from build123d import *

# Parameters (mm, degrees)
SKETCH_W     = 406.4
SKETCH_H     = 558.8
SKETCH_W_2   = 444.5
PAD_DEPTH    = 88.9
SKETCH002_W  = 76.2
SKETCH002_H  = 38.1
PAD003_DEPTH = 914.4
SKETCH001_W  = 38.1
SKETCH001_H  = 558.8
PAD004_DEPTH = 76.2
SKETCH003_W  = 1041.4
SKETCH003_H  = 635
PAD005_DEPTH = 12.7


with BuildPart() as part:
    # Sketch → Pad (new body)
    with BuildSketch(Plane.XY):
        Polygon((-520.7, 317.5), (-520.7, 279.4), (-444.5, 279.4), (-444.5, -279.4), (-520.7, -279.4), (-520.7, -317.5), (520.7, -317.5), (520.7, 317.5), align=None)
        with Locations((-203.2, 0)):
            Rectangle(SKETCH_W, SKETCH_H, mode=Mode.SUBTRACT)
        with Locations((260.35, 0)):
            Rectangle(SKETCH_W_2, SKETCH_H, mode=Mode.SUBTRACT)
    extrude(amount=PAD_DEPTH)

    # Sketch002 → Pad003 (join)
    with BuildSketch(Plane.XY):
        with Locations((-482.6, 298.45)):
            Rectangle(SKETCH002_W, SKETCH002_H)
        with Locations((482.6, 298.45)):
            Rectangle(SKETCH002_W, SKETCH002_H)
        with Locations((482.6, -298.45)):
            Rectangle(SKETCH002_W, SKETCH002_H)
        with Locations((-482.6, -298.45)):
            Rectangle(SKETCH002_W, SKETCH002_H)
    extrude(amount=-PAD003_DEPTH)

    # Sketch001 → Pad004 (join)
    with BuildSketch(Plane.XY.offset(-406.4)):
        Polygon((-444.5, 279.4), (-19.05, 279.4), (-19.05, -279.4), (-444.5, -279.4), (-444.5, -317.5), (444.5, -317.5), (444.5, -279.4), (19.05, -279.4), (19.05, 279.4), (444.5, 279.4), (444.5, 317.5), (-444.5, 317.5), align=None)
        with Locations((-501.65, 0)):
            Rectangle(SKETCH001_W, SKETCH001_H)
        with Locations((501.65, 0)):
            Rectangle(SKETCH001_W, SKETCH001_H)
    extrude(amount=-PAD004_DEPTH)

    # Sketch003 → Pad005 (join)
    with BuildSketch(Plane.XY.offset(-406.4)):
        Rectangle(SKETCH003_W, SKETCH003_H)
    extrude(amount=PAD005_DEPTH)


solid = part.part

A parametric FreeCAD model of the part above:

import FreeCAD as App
import Part
import Sketcher
Q = App.Units.Quantity

doc = App.newDocument("Part")
body = doc.addObject("PartDesign::Body", "Body")

# Sketch on XY plane
sketch1 = body.newObject("Sketcher::SketchObject", "Sketch")
sketch1.AttachmentSupport = (doc.getObject("XY_Plane"), [""])
sketch1.MapMode = "FlatFace"
sketch1.addGeometry(Part.LineSegment(App.Vector(-520.7, 317.5, 0), App.Vector(-520.7, 279.4, 0)), False)
sketch1.addGeometry(Part.LineSegment(App.Vector(-520.7, 279.4, 0), App.Vector(-444.5, 279.4, 0)), False)
sketch1.addGeometry(Part.LineSegment(App.Vector(-444.5, 279.4, 0), App.Vector(-444.5, -279.4, 0)), False)
sketch1.addGeometry(Part.LineSegment(App.Vector(-444.5, -279.4, 0), App.Vector(-520.7, -279.4, 0)), False)
sketch1.addGeometry(Part.LineSegment(App.Vector(-520.7, -279.4, 0), App.Vector(-520.7, -317.5, 0)), False)
sketch1.addGeometry(Part.LineSegment(App.Vector(-520.7, -317.5, 0), App.Vector(520.7, -317.5, 0)), False)
sketch1.addGeometry(Part.LineSegment(App.Vector(520.7, -317.5, 0), App.Vector(520.7, 317.5, 0)), False)
sketch1.addGeometry(Part.LineSegment(App.Vector(520.7, 317.5, 0), App.Vector(-520.7, 317.5, 0)), False)
sketch1.addGeometry(Part.LineSegment(App.Vector(0, -279.4, 0), App.Vector(-406.4, -279.4, 0)), False)
sketch1.addGeometry(Part.LineSegment(App.Vector(-406.4, -279.4, 0), App.Vector(-406.4, 279.4, 0)), False)
sketch1.addGeometry(Part.LineSegment(App.Vector(-406.4, 279.4, 0), App.Vector(0, 279.4, 0)), False)
sketch1.addGeometry(Part.LineSegment(App.Vector(0, 279.4, 0), App.Vector(0, -279.4, 0)), False)
sketch1.addGeometry(Part.LineSegment(App.Vector(482.6, -279.4, 0), App.Vector(38.1, -279.4, 0)), False)
sketch1.addGeometry(Part.LineSegment(App.Vector(38.1, -279.4, 0), App.Vector(38.1, 279.4, 0)), False)
sketch1.addGeometry(Part.LineSegment(App.Vector(38.1, 279.4, 0), App.Vector(482.6, 279.4, 0)), False)
sketch1.addGeometry(Part.LineSegment(App.Vector(482.6, 279.4, 0), App.Vector(482.6, -279.4, 0)), False)
sketch1.addConstraint(Sketcher.Constraint("Coincident", 0, 2, 1, 1))
sketch1.addConstraint(Sketcher.Constraint("Coincident", 1, 2, 2, 1))
sketch1.addConstraint(Sketcher.Constraint("Coincident", 2, 2, 3, 1))
sketch1.addConstraint(Sketcher.Constraint("Coincident", 3, 2, 4, 1))
sketch1.addConstraint(Sketcher.Constraint("Coincident", 4, 2, 5, 1))
sketch1.addConstraint(Sketcher.Constraint("Coincident", 5, 2, 6, 1))
sketch1.addConstraint(Sketcher.Constraint("Coincident", 6, 2, 7, 1))
sketch1.addConstraint(Sketcher.Constraint("Coincident", 7, 2, 0, 1))
sketch1.addConstraint(Sketcher.Constraint("Coincident", 8, 2, 9, 1))
sketch1.addConstraint(Sketcher.Constraint("Coincident", 9, 2, 10, 1))
sketch1.addConstraint(Sketcher.Constraint("Coincident", 10, 2, 11, 1))
sketch1.addConstraint(Sketcher.Constraint("Coincident", 11, 2, 8, 1))
sketch1.addConstraint(Sketcher.Constraint("Coincident", 12, 2, 13, 1))
sketch1.addConstraint(Sketcher.Constraint("Coincident", 13, 2, 14, 1))
sketch1.addConstraint(Sketcher.Constraint("Coincident", 14, 2, 15, 1))
sketch1.addConstraint(Sketcher.Constraint("Coincident", 15, 2, 12, 1))
sketch1.addConstraint(Sketcher.Constraint("Vertical", 0))
sketch1.addConstraint(Sketcher.Constraint("Horizontal", 1))
sketch1.addConstraint(Sketcher.Constraint("Vertical", 2))
sketch1.addConstraint(Sketcher.Constraint("Horizontal", 3))
sketch1.addConstraint(Sketcher.Constraint("Vertical", 4))
sketch1.addConstraint(Sketcher.Constraint("Horizontal", 5))
sketch1.addConstraint(Sketcher.Constraint("Vertical", 6))
sketch1.addConstraint(Sketcher.Constraint("Horizontal", 7))
sketch1.addConstraint(Sketcher.Constraint("Horizontal", 8))
sketch1.addConstraint(Sketcher.Constraint("Vertical", 9))
sketch1.addConstraint(Sketcher.Constraint("Horizontal", 10))
sketch1.addConstraint(Sketcher.Constraint("Vertical", 11))
sketch1.addConstraint(Sketcher.Constraint("Horizontal", 12))
sketch1.addConstraint(Sketcher.Constraint("Vertical", 13))
sketch1.addConstraint(Sketcher.Constraint("Horizontal", 14))
sketch1.addConstraint(Sketcher.Constraint("Vertical", 15))
sketch1.addConstraint(Sketcher.Constraint("Symmetric", 4, 2, 6, 2, -1, 1))
sketch1.addConstraint(Sketcher.Constraint("Symmetric", 10, 2, 11, 2, -1, 1))
sketch1.addConstraint(Sketcher.Constraint("Symmetric", 0, 2, 3, 2, -1))
sketch1.addConstraint(Sketcher.Constraint("Horizontal", 3, 2, 8, 2))
sketch1.addConstraint(Sketcher.Constraint("Horizontal", 11, 2, 12, 2))
sketch1.addConstraint(Sketcher.Constraint("Horizontal", 10, 2, 13, 2))
sketch1.addConstraint(Sketcher.Constraint("DistanceX", 1, 1, 1, 2, Q("3 in")))
sketch1.addConstraint(Sketcher.Constraint("DistanceX", 5, 1, 5, 2, Q("41 in")))
sketch1.addConstraint(Sketcher.Constraint("DistanceX", 8, 2, 8, 1, Q("16 in")))
sketch1.addConstraint(Sketcher.Constraint("DistanceY", 2, 2, 2, 1, Q("22 in")))
sketch1.addConstraint(Sketcher.Constraint("DistanceY", 6, 1, 6, 2, Q("25 in")))
sketch1.addConstraint(Sketcher.Constraint("DistanceX", 12, 2, 12, 1, Q("17.5 in")))
sketch1.addConstraint(Sketcher.Constraint("DistanceX", -1, 1, 14, 2, Q("19 in")))
pad1 = body.newObject("PartDesign::Pad", "Pad")
pad1.Profile = sketch1
pad1.Length = Q("3.5 in")

# Sketch on XY plane
sketch2 = body.newObject("Sketcher::SketchObject", "Sketch001")
sketch2.AttachmentSupport = (doc.getObject("XY_Plane"), [""])
sketch2.MapMode = "FlatFace"
sketch2.addGeometry(Part.LineSegment(App.Vector(-520.7, 317.5, 0), App.Vector(-520.7, 279.4, 0)), False)
sketch2.addGeometry(Part.LineSegment(App.Vector(-520.7, 279.4, 0), App.Vector(-444.5, 279.4, 0)), False)
sketch2.addGeometry(Part.LineSegment(App.Vector(-444.5, 279.4, 0), App.Vector(-444.5, 317.5, 0)), False)
sketch2.addGeometry(Part.LineSegment(App.Vector(-444.5, 317.5, 0), App.Vector(-520.7, 317.5, 0)), False)
sketch2.addGeometry(Part.LineSegment(App.Vector(444.5, 317.5, 0), App.Vector(444.5, 279.4, 0)), False)
sketch2.addGeometry(Part.LineSegment(App.Vector(444.5, 279.4, 0), App.Vector(520.7, 279.4, 0)), False)
sketch2.addGeometry(Part.LineSegment(App.Vector(520.7, 279.4, 0), App.Vector(520.7, 317.5, 0)), False)
sketch2.addGeometry(Part.LineSegment(App.Vector(520.7, 317.5, 0), App.Vector(444.5, 317.5, 0)), False)
sketch2.addGeometry(Part.LineSegment(App.Vector(444.5, -279.4, 0), App.Vector(444.5, -317.5, 0)), False)
sketch2.addGeometry(Part.LineSegment(App.Vector(444.5, -317.5, 0), App.Vector(520.7, -317.5, 0)), False)
sketch2.addGeometry(Part.LineSegment(App.Vector(520.7, -317.5, 0), App.Vector(520.7, -279.4, 0)), False)
sketch2.addGeometry(Part.LineSegment(App.Vector(520.7, -279.4, 0), App.Vector(444.5, -279.4, 0)), False)
sketch2.addGeometry(Part.LineSegment(App.Vector(-520.7, -279.4, 0), App.Vector(-520.7, -317.5, 0)), False)
sketch2.addGeometry(Part.LineSegment(App.Vector(-520.7, -317.5, 0), App.Vector(-444.5, -317.5, 0)), False)
sketch2.addGeometry(Part.LineSegment(App.Vector(-444.5, -317.5, 0), App.Vector(-444.5, -279.4, 0)), False)
sketch2.addGeometry(Part.LineSegment(App.Vector(-444.5, -279.4, 0), App.Vector(-520.7, -279.4, 0)), False)
sketch2.addConstraint(Sketcher.Constraint("Coincident", 0, 2, 1, 1))
sketch2.addConstraint(Sketcher.Constraint("Coincident", 1, 2, 2, 1))
sketch2.addConstraint(Sketcher.Constraint("Coincident", 2, 2, 3, 1))
sketch2.addConstraint(Sketcher.Constraint("Coincident", 3, 2, 0, 1))
sketch2.addConstraint(Sketcher.Constraint("Coincident", 4, 2, 5, 1))
sketch2.addConstraint(Sketcher.Constraint("Coincident", 5, 2, 6, 1))
sketch2.addConstraint(Sketcher.Constraint("Coincident", 6, 2, 7, 1))
sketch2.addConstraint(Sketcher.Constraint("Coincident", 7, 2, 4, 1))
sketch2.addConstraint(Sketcher.Constraint("Coincident", 8, 2, 9, 1))
sketch2.addConstraint(Sketcher.Constraint("Coincident", 9, 2, 10, 1))
sketch2.addConstraint(Sketcher.Constraint("Coincident", 10, 2, 11, 1))
sketch2.addConstraint(Sketcher.Constraint("Coincident", 11, 2, 8, 1))
sketch2.addConstraint(Sketcher.Constraint("Coincident", 12, 2, 13, 1))
sketch2.addConstraint(Sketcher.Constraint("Coincident", 13, 2, 14, 1))
sketch2.addConstraint(Sketcher.Constraint("Coincident", 14, 2, 15, 1))
sketch2.addConstraint(Sketcher.Constraint("Coincident", 15, 2, 12, 1))
sketch2.addConstraint(Sketcher.Constraint("Vertical", 0))
sketch2.addConstraint(Sketcher.Constraint("Horizontal", 1))
sketch2.addConstraint(Sketcher.Constraint("Vertical", 2))
sketch2.addConstraint(Sketcher.Constraint("Horizontal", 3))
sketch2.addConstraint(Sketcher.Constraint("Vertical", 4))
sketch2.addConstraint(Sketcher.Constraint("Horizontal", 5))
sketch2.addConstraint(Sketcher.Constraint("Vertical", 6))
sketch2.addConstraint(Sketcher.Constraint("Horizontal", 7))
sketch2.addConstraint(Sketcher.Constraint("Vertical", 8))
sketch2.addConstraint(Sketcher.Constraint("Horizontal", 9))
sketch2.addConstraint(Sketcher.Constraint("Vertical", 10))
sketch2.addConstraint(Sketcher.Constraint("Horizontal", 11))
sketch2.addConstraint(Sketcher.Constraint("Vertical", 12))
sketch2.addConstraint(Sketcher.Constraint("Horizontal", 13))
sketch2.addConstraint(Sketcher.Constraint("Vertical", 14))
sketch2.addConstraint(Sketcher.Constraint("Horizontal", 15))
sketch2.addConstraint(Sketcher.Constraint("Symmetric", 2, 2, 8, 2, -1, 1))
sketch2.addConstraint(Sketcher.Constraint("Symmetric", 0, 2, 10, 2, -1, 1))
sketch2.addConstraint(Sketcher.Constraint("Symmetric", 6, 2, 12, 2, -1, 1))
sketch2.addConstraint(Sketcher.Constraint("Symmetric", 4, 2, 14, 2, -1, 1))
sketch2.addConstraint(Sketcher.Constraint("Symmetric", 1, 2, 4, 2, -2))
sketch2.addConstraint(Sketcher.Constraint("Symmetric", 3, 2, 6, 2, -2))
sketch2.addConstraint(Sketcher.Constraint("DistanceX", 1, 1, 1, 2, Q("3 in")))
sketch2.addConstraint(Sketcher.Constraint("DistanceY", 0, 2, 0, 1, Q("1.5 in")))
sketch2.addConstraint(Sketcher.Constraint("DistanceY", -1, 1, 0, 2, Q("11 in")))
sketch2.addConstraint(Sketcher.Constraint("DistanceX", 1, 2, 4, 2, Q("35 in")))
pad2 = body.newObject("PartDesign::Pad", "Pad001")
pad2.Profile = sketch2
pad2.Length = Q("36 in")
pad2.Reversed = True

# Sketch on XY plane
sketch3 = body.newObject("Sketcher::SketchObject", "Sketch002")
sketch3.AttachmentSupport = (doc.getObject("XY_Plane"), [""])
sketch3.MapMode = "FlatFace"
sketch3.AttachmentOffset = App.Placement(App.Vector(0, 0, -16 * 25.4), App.Rotation())
sketch3.addGeometry(Part.LineSegment(App.Vector(-444.5, 279.4, 0), App.Vector(-19.05, 279.4, 0)), False)
sketch3.addGeometry(Part.LineSegment(App.Vector(-19.05, 279.4, 0), App.Vector(-19.05, -279.4, 0)), False)
sketch3.addGeometry(Part.LineSegment(App.Vector(-19.05, -279.4, 0), App.Vector(-444.5, -279.4, 0)), False)
sketch3.addGeometry(Part.LineSegment(App.Vector(-444.5, -279.4, 0), App.Vector(-444.5, -317.5, 0)), False)
sketch3.addGeometry(Part.LineSegment(App.Vector(-444.5, -317.5, 0), App.Vector(444.5, -317.5, 0)), False)
sketch3.addGeometry(Part.LineSegment(App.Vector(444.5, -317.5, 0), App.Vector(444.5, -279.4, 0)), False)
sketch3.addGeometry(Part.LineSegment(App.Vector(444.5, -279.4, 0), App.Vector(19.05, -279.4, 0)), False)
sketch3.addGeometry(Part.LineSegment(App.Vector(19.05, -279.4, 0), App.Vector(19.05, 279.4, 0)), False)
sketch3.addGeometry(Part.LineSegment(App.Vector(19.05, 279.4, 0), App.Vector(444.5, 279.4, 0)), False)
sketch3.addGeometry(Part.LineSegment(App.Vector(444.5, 279.4, 0), App.Vector(444.5, 317.5, 0)), False)
sketch3.addGeometry(Part.LineSegment(App.Vector(444.5, 317.5, 0), App.Vector(-444.5, 317.5, 0)), False)
sketch3.addGeometry(Part.LineSegment(App.Vector(-444.5, 317.5, 0), App.Vector(-444.5, 279.4, 0)), False)
sketch3.addGeometry(Part.LineSegment(App.Vector(-520.7, 279.4, 0), App.Vector(-520.7, -279.4, 0)), False)
sketch3.addGeometry(Part.LineSegment(App.Vector(-520.7, -279.4, 0), App.Vector(-482.6, -279.4, 0)), False)
sketch3.addGeometry(Part.LineSegment(App.Vector(-482.6, -279.4, 0), App.Vector(-482.6, 279.4, 0)), False)
sketch3.addGeometry(Part.LineSegment(App.Vector(-482.6, 279.4, 0), App.Vector(-520.7, 279.4, 0)), False)
sketch3.addGeometry(Part.LineSegment(App.Vector(482.6, 279.4, 0), App.Vector(482.6, -279.4, 0)), False)
sketch3.addGeometry(Part.LineSegment(App.Vector(482.6, -279.4, 0), App.Vector(520.7, -279.4, 0)), False)
sketch3.addGeometry(Part.LineSegment(App.Vector(520.7, -279.4, 0), App.Vector(520.7, 279.4, 0)), False)
sketch3.addGeometry(Part.LineSegment(App.Vector(520.7, 279.4, 0), App.Vector(482.6, 279.4, 0)), False)
sketch3.addConstraint(Sketcher.Constraint("Coincident", 0, 2, 1, 1))
sketch3.addConstraint(Sketcher.Constraint("Coincident", 1, 2, 2, 1))
sketch3.addConstraint(Sketcher.Constraint("Coincident", 2, 2, 3, 1))
sketch3.addConstraint(Sketcher.Constraint("Coincident", 3, 2, 4, 1))
sketch3.addConstraint(Sketcher.Constraint("Coincident", 4, 2, 5, 1))
sketch3.addConstraint(Sketcher.Constraint("Coincident", 5, 2, 6, 1))
sketch3.addConstraint(Sketcher.Constraint("Coincident", 6, 2, 7, 1))
sketch3.addConstraint(Sketcher.Constraint("Coincident", 7, 2, 8, 1))
sketch3.addConstraint(Sketcher.Constraint("Coincident", 8, 2, 9, 1))
sketch3.addConstraint(Sketcher.Constraint("Coincident", 9, 2, 10, 1))
sketch3.addConstraint(Sketcher.Constraint("Coincident", 10, 2, 11, 1))
sketch3.addConstraint(Sketcher.Constraint("Coincident", 11, 2, 0, 1))
sketch3.addConstraint(Sketcher.Constraint("Coincident", 12, 2, 13, 1))
sketch3.addConstraint(Sketcher.Constraint("Coincident", 13, 2, 14, 1))
sketch3.addConstraint(Sketcher.Constraint("Coincident", 14, 2, 15, 1))
sketch3.addConstraint(Sketcher.Constraint("Coincident", 15, 2, 12, 1))
sketch3.addConstraint(Sketcher.Constraint("Coincident", 16, 2, 17, 1))
sketch3.addConstraint(Sketcher.Constraint("Coincident", 17, 2, 18, 1))
sketch3.addConstraint(Sketcher.Constraint("Coincident", 18, 2, 19, 1))
sketch3.addConstraint(Sketcher.Constraint("Coincident", 19, 2, 16, 1))
sketch3.addConstraint(Sketcher.Constraint("Horizontal", 0))
sketch3.addConstraint(Sketcher.Constraint("Vertical", 1))
sketch3.addConstraint(Sketcher.Constraint("Horizontal", 2))
sketch3.addConstraint(Sketcher.Constraint("Vertical", 3))
sketch3.addConstraint(Sketcher.Constraint("Horizontal", 4))
sketch3.addConstraint(Sketcher.Constraint("Vertical", 5))
sketch3.addConstraint(Sketcher.Constraint("Horizontal", 6))
sketch3.addConstraint(Sketcher.Constraint("Vertical", 7))
sketch3.addConstraint(Sketcher.Constraint("Horizontal", 8))
sketch3.addConstraint(Sketcher.Constraint("Vertical", 9))
sketch3.addConstraint(Sketcher.Constraint("Horizontal", 10))
sketch3.addConstraint(Sketcher.Constraint("Vertical", 11))
sketch3.addConstraint(Sketcher.Constraint("Vertical", 12))
sketch3.addConstraint(Sketcher.Constraint("Horizontal", 13))
sketch3.addConstraint(Sketcher.Constraint("Vertical", 14))
sketch3.addConstraint(Sketcher.Constraint("Horizontal", 15))
sketch3.addConstraint(Sketcher.Constraint("Vertical", 16))
sketch3.addConstraint(Sketcher.Constraint("Horizontal", 17))
sketch3.addConstraint(Sketcher.Constraint("Vertical", 18))
sketch3.addConstraint(Sketcher.Constraint("Horizontal", 19))
sketch3.addConstraint(Sketcher.Constraint("Symmetric", 0, 2, 6, 2, -1, 1))
sketch3.addConstraint(Sketcher.Constraint("Symmetric", 2, 2, 8, 2, -1, 1))
sketch3.addConstraint(Sketcher.Constraint("Symmetric", 4, 2, 10, 2, -1, 1))
sketch3.addConstraint(Sketcher.Constraint("Symmetric", 14, 2, 16, 2, -1, 1))
sketch3.addConstraint(Sketcher.Constraint("Symmetric", 12, 2, 18, 2, -1, 1))
sketch3.addConstraint(Sketcher.Constraint("Symmetric", 2, 2, 5, 2, -2))
sketch3.addConstraint(Sketcher.Constraint("Horizontal", 6, 2, 12, 2))
sketch3.addConstraint(Sketcher.Constraint("Horizontal", 11, 2, 14, 2))
sketch3.addConstraint(Sketcher.Constraint("Equal", 19, 3))
sketch3.addConstraint(Sketcher.Constraint("DistanceX", 4, 1, 4, 2, Q("35 in")))
sketch3.addConstraint(Sketcher.Constraint("DistanceY", 1, 2, 1, 1, Q("22 in")))
sketch3.addConstraint(Sketcher.Constraint("DistanceX", 13, 1, 13, 2, Q("1.5 in")))
sketch3.addConstraint(Sketcher.Constraint("DistanceX", 13, 2, -1, 1, Q("19 in")))
sketch3.addConstraint(Sketcher.Constraint("DistanceX", 0, 1, 0, 2, Q("16.75 in")))
pad3 = body.newObject("PartDesign::Pad", "Pad002")
pad3.Profile = sketch3
pad3.Length = Q("3 in")
pad3.Reversed = True

# Sketch on XY plane
sketch4 = body.newObject("Sketcher::SketchObject", "Sketch003")
sketch4.AttachmentSupport = (doc.getObject("XY_Plane"), [""])
sketch4.MapMode = "FlatFace"
sketch4.AttachmentOffset = App.Placement(App.Vector(0, 0, -16 * 25.4), App.Rotation())
sketch4.addGeometry(Part.LineSegment(App.Vector(-520.7, 317.5, 0), App.Vector(-520.7, -317.5, 0)), False)
sketch4.addGeometry(Part.LineSegment(App.Vector(-520.7, -317.5, 0), App.Vector(520.7, -317.5, 0)), False)
sketch4.addGeometry(Part.LineSegment(App.Vector(520.7, -317.5, 0), App.Vector(520.7, 317.5, 0)), False)
sketch4.addGeometry(Part.LineSegment(App.Vector(520.7, 317.5, 0), App.Vector(-520.7, 317.5, 0)), False)
sketch4.addConstraint(Sketcher.Constraint("Coincident", 0, 2, 1, 1))
sketch4.addConstraint(Sketcher.Constraint("Coincident", 1, 2, 2, 1))
sketch4.addConstraint(Sketcher.Constraint("Coincident", 2, 2, 3, 1))
sketch4.addConstraint(Sketcher.Constraint("Coincident", 3, 2, 0, 1))
sketch4.addConstraint(Sketcher.Constraint("Vertical", 0))
sketch4.addConstraint(Sketcher.Constraint("Horizontal", 1))
sketch4.addConstraint(Sketcher.Constraint("Vertical", 2))
sketch4.addConstraint(Sketcher.Constraint("Horizontal", 3))
sketch4.addConstraint(Sketcher.Constraint("Symmetric", 0, 2, 2, 2, -1, 1))
sketch4.addConstraint(Sketcher.Constraint("DistanceX", 1, 1, 1, 2, Q("41 in")))
sketch4.addConstraint(Sketcher.Constraint("DistanceY", 0, 2, 0, 1, Q("25 in")))
pad4 = body.newObject("PartDesign::Pad", "Pad003")
pad4.Profile = sketch4
pad4.Length = Q("0.5 in")

doc.recompute()
